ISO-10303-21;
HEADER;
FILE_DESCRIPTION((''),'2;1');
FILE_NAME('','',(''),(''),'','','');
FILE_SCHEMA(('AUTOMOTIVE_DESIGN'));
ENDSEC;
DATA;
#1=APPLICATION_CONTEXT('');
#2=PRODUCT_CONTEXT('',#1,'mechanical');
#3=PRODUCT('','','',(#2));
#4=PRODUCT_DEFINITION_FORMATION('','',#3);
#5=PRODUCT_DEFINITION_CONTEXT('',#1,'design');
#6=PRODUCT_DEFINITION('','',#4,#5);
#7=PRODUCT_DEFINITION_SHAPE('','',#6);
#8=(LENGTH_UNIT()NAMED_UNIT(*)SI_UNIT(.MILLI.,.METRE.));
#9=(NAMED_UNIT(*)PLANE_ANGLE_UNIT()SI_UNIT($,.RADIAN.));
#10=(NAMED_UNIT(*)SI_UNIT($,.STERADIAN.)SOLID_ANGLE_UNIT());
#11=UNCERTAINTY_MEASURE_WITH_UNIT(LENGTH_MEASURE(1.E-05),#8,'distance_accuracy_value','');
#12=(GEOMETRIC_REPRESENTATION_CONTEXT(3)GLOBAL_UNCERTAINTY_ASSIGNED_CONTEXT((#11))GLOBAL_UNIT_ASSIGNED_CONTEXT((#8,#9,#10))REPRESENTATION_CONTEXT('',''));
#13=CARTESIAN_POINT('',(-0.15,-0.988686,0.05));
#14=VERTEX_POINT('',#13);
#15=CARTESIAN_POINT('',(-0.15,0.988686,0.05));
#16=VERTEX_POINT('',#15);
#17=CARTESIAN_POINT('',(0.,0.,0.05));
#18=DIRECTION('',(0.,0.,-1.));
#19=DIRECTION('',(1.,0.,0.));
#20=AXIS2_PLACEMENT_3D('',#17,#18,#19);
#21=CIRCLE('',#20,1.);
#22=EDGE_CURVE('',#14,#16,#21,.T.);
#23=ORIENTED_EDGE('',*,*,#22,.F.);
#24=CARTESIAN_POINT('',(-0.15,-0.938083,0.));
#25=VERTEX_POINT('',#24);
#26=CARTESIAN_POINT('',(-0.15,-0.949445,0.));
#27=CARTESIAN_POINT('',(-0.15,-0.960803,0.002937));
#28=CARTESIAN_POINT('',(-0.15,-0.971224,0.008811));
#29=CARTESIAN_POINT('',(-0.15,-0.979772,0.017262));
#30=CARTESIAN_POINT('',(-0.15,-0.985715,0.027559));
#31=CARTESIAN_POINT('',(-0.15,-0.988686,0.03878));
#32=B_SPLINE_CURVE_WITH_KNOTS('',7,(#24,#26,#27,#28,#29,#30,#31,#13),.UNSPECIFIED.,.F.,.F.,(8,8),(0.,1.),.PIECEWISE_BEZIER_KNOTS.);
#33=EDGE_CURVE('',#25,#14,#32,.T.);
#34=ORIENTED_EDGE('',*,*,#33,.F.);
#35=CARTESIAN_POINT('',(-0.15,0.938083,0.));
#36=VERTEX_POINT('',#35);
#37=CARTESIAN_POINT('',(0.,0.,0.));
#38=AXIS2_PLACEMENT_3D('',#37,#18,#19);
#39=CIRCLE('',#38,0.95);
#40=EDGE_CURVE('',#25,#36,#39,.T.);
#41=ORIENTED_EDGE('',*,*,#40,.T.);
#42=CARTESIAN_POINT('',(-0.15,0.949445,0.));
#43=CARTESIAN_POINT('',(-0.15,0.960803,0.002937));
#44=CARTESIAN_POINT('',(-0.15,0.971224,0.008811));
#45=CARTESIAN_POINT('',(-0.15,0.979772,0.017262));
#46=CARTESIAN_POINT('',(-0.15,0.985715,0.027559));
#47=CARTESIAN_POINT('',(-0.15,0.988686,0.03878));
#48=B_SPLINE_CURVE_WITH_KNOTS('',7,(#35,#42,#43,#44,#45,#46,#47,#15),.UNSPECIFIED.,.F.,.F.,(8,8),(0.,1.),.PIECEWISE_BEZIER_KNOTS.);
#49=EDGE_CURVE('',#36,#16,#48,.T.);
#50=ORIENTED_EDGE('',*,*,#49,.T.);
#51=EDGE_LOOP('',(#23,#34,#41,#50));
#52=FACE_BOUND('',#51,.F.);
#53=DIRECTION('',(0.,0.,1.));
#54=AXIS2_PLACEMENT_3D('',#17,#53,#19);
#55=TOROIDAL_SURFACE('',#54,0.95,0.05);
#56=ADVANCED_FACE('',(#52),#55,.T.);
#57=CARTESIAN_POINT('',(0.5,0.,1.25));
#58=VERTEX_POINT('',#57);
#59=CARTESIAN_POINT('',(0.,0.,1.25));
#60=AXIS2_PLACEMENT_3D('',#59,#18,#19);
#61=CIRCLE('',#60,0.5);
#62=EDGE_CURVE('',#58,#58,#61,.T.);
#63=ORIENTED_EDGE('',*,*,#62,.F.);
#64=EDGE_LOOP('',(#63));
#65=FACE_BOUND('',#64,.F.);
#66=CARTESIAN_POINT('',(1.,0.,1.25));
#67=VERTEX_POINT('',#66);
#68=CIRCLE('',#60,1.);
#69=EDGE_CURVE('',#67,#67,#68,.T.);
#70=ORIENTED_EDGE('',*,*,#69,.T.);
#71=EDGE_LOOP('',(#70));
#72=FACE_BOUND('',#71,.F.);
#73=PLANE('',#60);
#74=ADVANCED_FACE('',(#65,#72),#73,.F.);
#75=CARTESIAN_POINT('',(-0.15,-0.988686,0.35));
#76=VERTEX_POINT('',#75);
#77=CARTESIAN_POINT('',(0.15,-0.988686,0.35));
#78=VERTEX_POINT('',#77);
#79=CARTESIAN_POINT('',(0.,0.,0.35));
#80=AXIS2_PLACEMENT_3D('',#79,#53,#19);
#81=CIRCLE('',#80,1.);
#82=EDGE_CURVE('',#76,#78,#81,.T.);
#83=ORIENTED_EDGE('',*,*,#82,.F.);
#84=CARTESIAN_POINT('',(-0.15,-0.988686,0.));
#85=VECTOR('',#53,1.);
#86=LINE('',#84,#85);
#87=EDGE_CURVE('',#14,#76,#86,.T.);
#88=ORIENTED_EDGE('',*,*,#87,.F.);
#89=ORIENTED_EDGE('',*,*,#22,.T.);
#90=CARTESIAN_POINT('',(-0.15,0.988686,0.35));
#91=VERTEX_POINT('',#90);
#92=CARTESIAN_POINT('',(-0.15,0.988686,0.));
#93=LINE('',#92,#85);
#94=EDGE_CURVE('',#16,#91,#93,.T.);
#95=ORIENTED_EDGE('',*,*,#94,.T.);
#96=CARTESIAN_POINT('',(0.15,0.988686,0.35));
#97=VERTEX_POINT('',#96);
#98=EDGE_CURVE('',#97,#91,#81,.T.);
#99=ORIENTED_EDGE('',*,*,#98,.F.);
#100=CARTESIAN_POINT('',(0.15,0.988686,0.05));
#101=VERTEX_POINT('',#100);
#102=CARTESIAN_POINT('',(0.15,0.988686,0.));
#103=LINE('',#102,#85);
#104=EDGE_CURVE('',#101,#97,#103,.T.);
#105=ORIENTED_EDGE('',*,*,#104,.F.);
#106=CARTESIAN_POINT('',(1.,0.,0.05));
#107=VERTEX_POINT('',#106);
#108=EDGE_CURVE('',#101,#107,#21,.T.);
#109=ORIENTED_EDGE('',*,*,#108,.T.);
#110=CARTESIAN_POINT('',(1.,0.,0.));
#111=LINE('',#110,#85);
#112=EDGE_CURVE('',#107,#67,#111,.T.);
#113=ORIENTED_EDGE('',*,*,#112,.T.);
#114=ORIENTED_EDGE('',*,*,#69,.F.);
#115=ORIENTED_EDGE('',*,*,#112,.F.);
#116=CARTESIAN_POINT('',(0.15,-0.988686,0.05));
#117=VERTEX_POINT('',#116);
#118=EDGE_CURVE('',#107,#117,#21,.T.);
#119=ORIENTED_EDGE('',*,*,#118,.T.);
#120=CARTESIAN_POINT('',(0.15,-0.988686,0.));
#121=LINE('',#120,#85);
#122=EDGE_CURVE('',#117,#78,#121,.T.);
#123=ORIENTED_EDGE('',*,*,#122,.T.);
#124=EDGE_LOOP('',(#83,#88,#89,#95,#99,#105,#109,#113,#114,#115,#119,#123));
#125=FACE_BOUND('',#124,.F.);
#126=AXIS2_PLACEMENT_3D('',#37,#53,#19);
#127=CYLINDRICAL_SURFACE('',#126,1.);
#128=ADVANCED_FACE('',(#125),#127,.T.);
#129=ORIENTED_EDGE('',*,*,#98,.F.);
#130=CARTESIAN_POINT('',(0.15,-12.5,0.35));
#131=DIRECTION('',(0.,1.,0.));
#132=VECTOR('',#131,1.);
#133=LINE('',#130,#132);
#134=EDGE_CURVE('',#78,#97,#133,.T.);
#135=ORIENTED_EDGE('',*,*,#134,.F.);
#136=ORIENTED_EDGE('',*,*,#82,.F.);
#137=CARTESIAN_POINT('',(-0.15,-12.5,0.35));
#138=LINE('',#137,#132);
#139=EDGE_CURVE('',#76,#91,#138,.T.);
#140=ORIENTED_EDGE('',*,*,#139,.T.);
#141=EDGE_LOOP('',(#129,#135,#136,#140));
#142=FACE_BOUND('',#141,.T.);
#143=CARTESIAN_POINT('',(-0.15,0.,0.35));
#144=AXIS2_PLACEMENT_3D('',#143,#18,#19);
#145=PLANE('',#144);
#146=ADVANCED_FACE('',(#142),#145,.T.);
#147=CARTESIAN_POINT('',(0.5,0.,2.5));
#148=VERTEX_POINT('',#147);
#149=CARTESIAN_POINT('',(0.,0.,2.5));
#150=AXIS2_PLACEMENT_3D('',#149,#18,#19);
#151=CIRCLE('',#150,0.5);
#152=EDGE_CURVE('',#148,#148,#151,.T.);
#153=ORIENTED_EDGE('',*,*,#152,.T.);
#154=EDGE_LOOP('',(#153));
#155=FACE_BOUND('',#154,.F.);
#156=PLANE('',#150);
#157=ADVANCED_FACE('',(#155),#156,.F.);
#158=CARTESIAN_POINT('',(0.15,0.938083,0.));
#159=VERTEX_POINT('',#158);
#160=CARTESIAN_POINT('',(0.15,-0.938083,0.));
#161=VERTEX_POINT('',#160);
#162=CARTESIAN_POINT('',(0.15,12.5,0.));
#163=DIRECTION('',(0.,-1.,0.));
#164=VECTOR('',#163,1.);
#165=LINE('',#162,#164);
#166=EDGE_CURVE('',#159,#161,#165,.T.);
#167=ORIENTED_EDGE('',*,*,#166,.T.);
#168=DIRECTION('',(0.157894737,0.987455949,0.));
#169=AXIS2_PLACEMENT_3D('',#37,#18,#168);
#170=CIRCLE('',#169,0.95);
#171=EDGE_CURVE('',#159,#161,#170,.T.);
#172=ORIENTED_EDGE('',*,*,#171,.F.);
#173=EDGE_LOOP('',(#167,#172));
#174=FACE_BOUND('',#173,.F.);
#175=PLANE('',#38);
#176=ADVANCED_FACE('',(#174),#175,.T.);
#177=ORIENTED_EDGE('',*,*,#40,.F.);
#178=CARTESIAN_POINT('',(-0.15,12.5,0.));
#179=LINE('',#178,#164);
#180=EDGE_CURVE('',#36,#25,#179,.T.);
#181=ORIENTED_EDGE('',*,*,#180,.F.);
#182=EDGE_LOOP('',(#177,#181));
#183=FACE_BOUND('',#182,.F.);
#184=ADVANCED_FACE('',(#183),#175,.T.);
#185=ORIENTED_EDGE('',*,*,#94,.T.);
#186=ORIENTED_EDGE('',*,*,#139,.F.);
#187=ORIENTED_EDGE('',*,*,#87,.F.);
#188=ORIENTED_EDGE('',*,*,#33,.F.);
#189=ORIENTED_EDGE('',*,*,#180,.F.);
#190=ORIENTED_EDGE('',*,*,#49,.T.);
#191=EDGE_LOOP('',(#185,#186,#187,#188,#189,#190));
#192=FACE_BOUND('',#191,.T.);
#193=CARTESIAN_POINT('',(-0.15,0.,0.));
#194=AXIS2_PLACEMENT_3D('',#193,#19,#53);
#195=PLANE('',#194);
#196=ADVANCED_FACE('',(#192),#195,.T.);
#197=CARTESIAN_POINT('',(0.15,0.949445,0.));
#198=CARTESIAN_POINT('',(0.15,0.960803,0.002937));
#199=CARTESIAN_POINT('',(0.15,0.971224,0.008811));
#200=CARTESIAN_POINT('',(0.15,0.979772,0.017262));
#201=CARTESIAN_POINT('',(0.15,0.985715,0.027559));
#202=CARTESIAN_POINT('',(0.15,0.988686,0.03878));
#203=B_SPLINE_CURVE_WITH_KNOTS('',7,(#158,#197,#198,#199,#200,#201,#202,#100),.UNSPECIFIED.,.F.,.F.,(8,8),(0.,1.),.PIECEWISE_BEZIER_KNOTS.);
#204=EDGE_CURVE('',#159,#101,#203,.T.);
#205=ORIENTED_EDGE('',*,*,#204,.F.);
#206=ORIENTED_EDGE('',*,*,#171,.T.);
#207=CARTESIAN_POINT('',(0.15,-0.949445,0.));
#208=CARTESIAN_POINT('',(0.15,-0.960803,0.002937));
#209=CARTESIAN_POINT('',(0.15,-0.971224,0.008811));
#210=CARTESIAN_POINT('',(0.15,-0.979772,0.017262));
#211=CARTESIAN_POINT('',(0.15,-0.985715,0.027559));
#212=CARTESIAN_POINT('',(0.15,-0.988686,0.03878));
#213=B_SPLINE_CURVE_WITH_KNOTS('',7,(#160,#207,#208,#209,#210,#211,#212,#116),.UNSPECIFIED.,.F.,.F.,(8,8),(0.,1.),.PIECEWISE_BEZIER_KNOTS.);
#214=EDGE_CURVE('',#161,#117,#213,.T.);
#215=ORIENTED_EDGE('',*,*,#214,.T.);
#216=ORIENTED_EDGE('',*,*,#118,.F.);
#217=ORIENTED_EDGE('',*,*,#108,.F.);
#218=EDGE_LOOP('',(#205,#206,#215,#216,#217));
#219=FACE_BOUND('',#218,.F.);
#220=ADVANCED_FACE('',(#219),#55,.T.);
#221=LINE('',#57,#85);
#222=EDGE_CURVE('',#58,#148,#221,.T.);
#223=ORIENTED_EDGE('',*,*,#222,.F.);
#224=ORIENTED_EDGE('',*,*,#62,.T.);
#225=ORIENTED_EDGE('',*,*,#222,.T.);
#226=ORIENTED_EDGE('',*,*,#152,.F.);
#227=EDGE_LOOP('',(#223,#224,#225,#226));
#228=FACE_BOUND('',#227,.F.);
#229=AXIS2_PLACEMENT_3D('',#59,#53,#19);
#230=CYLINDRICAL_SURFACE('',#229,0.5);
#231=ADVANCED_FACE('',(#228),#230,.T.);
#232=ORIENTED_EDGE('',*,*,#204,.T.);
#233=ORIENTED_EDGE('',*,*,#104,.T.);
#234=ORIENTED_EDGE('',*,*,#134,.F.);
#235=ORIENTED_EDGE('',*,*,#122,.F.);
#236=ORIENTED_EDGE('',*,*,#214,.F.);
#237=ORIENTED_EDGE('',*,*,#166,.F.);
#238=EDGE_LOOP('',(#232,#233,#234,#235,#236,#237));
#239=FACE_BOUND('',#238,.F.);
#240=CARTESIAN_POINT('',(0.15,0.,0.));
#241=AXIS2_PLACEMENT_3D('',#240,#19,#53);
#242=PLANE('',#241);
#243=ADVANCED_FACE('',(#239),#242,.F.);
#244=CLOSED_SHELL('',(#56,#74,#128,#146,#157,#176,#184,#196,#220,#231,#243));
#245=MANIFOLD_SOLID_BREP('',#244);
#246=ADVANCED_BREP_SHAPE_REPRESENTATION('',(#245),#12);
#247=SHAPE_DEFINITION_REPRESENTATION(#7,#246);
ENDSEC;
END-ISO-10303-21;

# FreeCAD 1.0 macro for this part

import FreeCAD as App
import Part
import Sketcher

V = App.Vector


def edges_at(feature, points):
    """Names of the edges that pass closest to the given points."""
    edges = feature.Shape.Edges
    near = lambda p: min(range(len(edges)), key=lambda i: edges[i].distToShape(Part.Vertex(*p))[0])
    return sorted({f"Edge{near(p) + 1}" for p in points})


def add_polygon(sketch, points):
    """Adds a closed chain of lines whose ends are joined by coincident constraints."""
    first, n = sketch.GeometryCount, len(points)
    for a, b in zip(points, points[1:] + points[:1]):
        sketch.addGeometry(Part.LineSegment(App.Vector(*a, 0), App.Vector(*b, 0)), False)
    for i in range(n):
        sketch.addConstraint(Sketcher.Constraint("Coincident", first + i, 2, first + (i + 1) % n, 1))

doc = App.newDocument("Part")
body = doc.addObject("PartDesign::Body", "Body")

# Sketch on XZ plane
sketch1 = doc.addObject("Sketcher::SketchObject", "Sketch")
body.addObject(sketch1)
sketch1.AttachmentSupport = (doc.XZ_Plane, [""])
sketch1.MapMode = "FlatFace"
add_polygon(sketch1, [(0, 2.5), (0, 0), (1, 0), (1, 1.2), (0.5, 1.2), (0.5, 2.5)])  # lines 0-5
sketch1.addConstraint([
    Sketcher.Constraint("Vertical", 0),
    Sketcher.Constraint("Horizontal", 1),
    Sketcher.Constraint("Vertical", 2),
    Sketcher.Constraint("Horizontal", 3),
    Sketcher.Constraint("Vertical", 4),
    Sketcher.Constraint("Horizontal", 5),
    Sketcher.Constraint("Coincident", 0, 2, -1, 1),
    Sketcher.Constraint("Equal", 3, 5),
    Sketcher.Constraint("Equal", 2, 4),
    Sketcher.Constraint("DistanceX", 1, 1, 1, 2, 1.0),
    Sketcher.Constraint("DistanceY", 0, 2, 0, 1, 2.5),
])
revolution = doc.addObject("PartDesign::Revolution", "Revolution")
body.addObject(revolution)
revolution.Profile = sketch1
revolution.ReferenceAxis = (sketch1, ["V_Axis"])
revolution.Angle = 360
doc.recompute()

fillet = doc.addObject("PartDesign::Fillet", "Fillet")
body.addObject(fillet)
fillet.Base = (revolution, edges_at(revolution, [(-1, 0, 0)]))
fillet.Radius = 0.05

# Sketch on XZ plane
sketch2 = doc.addObject("Sketcher::SketchObject", "Sketch001")
body.addObject(sketch2)
sketch2.AttachmentSupport = (doc.XZ_Plane, [""])
sketch2.MapMode = "FlatFace"
add_polygon(sketch2, [(-0.15, 0.35), (-0.15, 0), (0.15, 0), (0.15, 0.35)])  # lines 0-3
sketch2.addConstraint([
    Sketcher.Constraint("Vertical", 0),
    Sketcher.Constraint("Horizontal", 1),
    Sketcher.Constraint("Vertical", 2),
    Sketcher.Constraint("Horizontal", 3),
    Sketcher.Constraint("Symmetric", 0, 2, 1, 2, -1, 1),
    Sketcher.Constraint("DistanceX", 1, 1, 1, 2, 0.3),
    Sketcher.Constraint("DistanceY", 0, 2, 0, 1, 0.35),
])
pocket1 = doc.addObject("PartDesign::Pocket", "Pocket")
body.addObject(pocket1)
pocket1.Profile = sketch2
pocket1.Length = 25
pocket1.Midplane = True

doc.recompute()
